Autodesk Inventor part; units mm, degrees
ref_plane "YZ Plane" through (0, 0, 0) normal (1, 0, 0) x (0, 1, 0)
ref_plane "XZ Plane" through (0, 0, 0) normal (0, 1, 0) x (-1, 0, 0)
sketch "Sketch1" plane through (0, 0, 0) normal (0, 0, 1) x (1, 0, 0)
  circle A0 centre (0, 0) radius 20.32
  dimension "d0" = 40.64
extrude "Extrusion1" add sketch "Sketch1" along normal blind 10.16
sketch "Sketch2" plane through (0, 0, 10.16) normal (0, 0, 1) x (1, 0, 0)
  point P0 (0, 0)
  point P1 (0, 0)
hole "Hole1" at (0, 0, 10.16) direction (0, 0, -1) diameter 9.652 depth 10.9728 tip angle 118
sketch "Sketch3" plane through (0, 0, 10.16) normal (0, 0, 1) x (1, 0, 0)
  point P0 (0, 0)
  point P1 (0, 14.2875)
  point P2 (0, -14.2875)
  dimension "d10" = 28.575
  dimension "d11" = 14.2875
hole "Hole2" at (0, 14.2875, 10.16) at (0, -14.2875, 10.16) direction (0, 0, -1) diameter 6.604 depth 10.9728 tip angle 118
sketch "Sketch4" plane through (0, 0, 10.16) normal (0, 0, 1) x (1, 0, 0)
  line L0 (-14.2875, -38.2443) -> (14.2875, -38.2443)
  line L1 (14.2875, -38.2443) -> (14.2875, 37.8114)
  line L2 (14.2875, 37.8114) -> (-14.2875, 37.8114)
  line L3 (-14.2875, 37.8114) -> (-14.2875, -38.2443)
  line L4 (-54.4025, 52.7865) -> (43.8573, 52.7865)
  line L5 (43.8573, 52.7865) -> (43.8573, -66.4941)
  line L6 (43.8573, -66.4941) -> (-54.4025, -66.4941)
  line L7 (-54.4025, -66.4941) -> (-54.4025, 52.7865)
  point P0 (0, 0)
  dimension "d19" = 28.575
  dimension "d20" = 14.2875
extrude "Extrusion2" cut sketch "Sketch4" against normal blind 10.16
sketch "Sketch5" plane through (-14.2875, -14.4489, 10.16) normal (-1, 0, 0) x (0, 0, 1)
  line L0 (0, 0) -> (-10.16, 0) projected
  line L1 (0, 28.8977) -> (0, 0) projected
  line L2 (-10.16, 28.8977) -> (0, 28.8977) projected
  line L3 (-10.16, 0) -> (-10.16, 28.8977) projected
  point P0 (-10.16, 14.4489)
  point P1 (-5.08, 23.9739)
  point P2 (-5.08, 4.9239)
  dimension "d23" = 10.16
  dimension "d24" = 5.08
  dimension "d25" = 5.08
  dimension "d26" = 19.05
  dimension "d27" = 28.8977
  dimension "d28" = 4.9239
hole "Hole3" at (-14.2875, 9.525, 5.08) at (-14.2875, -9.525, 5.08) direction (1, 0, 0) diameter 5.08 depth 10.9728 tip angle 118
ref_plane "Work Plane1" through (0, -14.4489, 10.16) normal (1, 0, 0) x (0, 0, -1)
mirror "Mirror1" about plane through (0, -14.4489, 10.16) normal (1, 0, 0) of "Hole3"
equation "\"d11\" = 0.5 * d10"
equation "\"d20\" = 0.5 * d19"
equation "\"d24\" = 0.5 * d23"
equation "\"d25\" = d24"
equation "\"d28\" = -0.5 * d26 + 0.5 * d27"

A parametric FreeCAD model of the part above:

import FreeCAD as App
import Part
import Sketcher

V = App.Vector
Q = App.Units.Quantity


def add_polygon(sketch, points):
    """Adds a closed chain of lines whose ends are joined by coincident constraints."""
    first, n = sketch.GeometryCount, len(points)
    for a, b in zip(points, points[1:] + points[:1]):
        sketch.addGeometry(Part.LineSegment(App.Vector(*a, 0), App.Vector(*b, 0)), False)
    for i in range(n):
        sketch.addConstraint(Sketcher.Constraint("Coincident", first + i, 2, first + (i + 1) % n, 1))

doc = App.newDocument("Part")
params = doc.addObject("Spreadsheet::Sheet", "Params")
for row, (alias, value) in enumerate([
    ("sketch1_diameter", "1.6 in"),
    ("pad1_length", "0.4 in"),
    ("sketch2_diameter", "0.38 in"),
    ("hole_diameter", "0.38 in"),
    ("hole_depth", "0.432 in"),
    ("sketch3_diameter", "0.26 in"),
    ("hole2_diameter", "0.26 in"),
    ("hole2_depth", "0.432 in"),
    ("sketch4_width", "1.125 in"),
    ("pocket1_length", "0.4 in"),
    ("sketch5_diameter", "0.2 in"),
    ("hole3_diameter", "0.2 in"),
    ("hole3_depth", "0.432 in"),
], start=1):
    params.set(f"A{row}", alias)
    params.set(f"B{row}", "=" + value)
    params.setAlias(f"B{row}", alias)

body = doc.addObject("PartDesign::Body", "Body")

# Sketch on XY plane
sketch1 = body.newObject("Sketcher::SketchObject", "Sketch")
sketch1.AttachmentSupport = (doc.getObject("XY_Plane"), [""])
sketch1.MapMode = "FlatFace"
sketch1.addGeometry(Part.Circle(V(0, 0, 0), V(0, 0, 1), 20.32), False)
sketch1.addConstraint([
    Sketcher.Constraint("Coincident", 0, 3, -1, 1),
    Sketcher.Constraint("Diameter", 0, Q("1.6 in")),
])
sketch1.setExpression("Constraints[1]", "Params.sketch1_diameter")
pad1 = body.newObject("PartDesign::Pad", "Pad")
pad1.Profile = sketch1
pad1.setExpression("Length", "Params.pad1_length")

# Sketch on XY plane
sketch2 = body.newObject("Sketcher::SketchObject", "Sketch001")
sketch2.AttachmentSupport = (doc.getObject("XY_Plane"), [""])
sketch2.MapMode = "FlatFace"
sketch2.AttachmentOffset = App.Placement(V(0, 0, 0.4 * 25.4), App.Rotation())
sketch2.addGeometry(Part.Circle(V(0, 0, 0), V(0, 0, 1), 4.826), False)
sketch2.addConstraint([
    Sketcher.Constraint("Coincident", 0, 3, -1, 1),
    Sketcher.Constraint("Diameter", 0, Q("0.38 in")),
])
sketch2.setExpression("Constraints[1]", "Params.sketch2_diameter")
doc.recompute()
hole = body.newObject("PartDesign::Hole", "Hole")
hole.Profile = sketch2
hole.ThreadType = "None"
hole.setExpression("Diameter", "Params.hole_diameter")
hole.DepthType = "Dimension"
hole.setExpression("Depth", "Params.hole_depth")
hole.DrillPoint = "Angled"
hole.DrillPointAngle = 118

# Sketch on XY plane
sketch3 = body.newObject("Sketcher::SketchObject", "Sketch002")
sketch3.AttachmentSupport = (doc.getObject("XY_Plane"), [""])
sketch3.MapMode = "FlatFace"
sketch3.AttachmentOffset = App.Placement(V(0, 0, 0.4 * 25.4), App.Rotation())
sketch3.addGeometry([
    Part.Circle(V(0, 14.2875, 0), V(0, 0, 1), 3.302),
    Part.Circle(V(0, -14.2875, 0), V(0, 0, 1), 3.302),
], False)
sketch3.addConstraint([
    Sketcher.Constraint("Equal", 0, 1),
    Sketcher.Constraint("Symmetric", 0, 3, 1, 3, -1, 1),
    Sketcher.Constraint("PointOnObject", 0, 3, -2),
    Sketcher.Constraint("Diameter", 0, Q("0.26 in")),
    Sketcher.Constraint("DistanceY", -1, 1, 0, 3, Q("0.5625 in")),
])
sketch3.setExpression("Constraints[3]", "Params.sketch3_diameter")
doc.recompute()
hole2 = body.newObject("PartDesign::Hole", "Hole001")
hole2.Profile = sketch3
hole2.ThreadType = "None"
hole2.setExpression("Diameter", "Params.hole2_diameter")
hole2.DepthType = "Dimension"
hole2.setExpression("Depth", "Params.hole2_depth")
hole2.DrillPoint = "Angled"
hole2.DrillPointAngle = 118

# Sketch on XY plane
sketch4 = body.newObject("Sketcher::SketchObject", "Sketch003")
sketch4.AttachmentSupport = (doc.getObject("XY_Plane"), [""])
sketch4.MapMode = "FlatFace"
sketch4.AttachmentOffset = App.Placement(V(0, 0, 0.4 * 25.4), App.Rotation())
add_polygon(sketch4, [(43.8573, 52.7865), (-54.4025, 52.7865), (-54.4025, -66.4941), (43.8573, -66.4941)])  # lines 0-3
add_polygon(sketch4, [(14.2875, -38.2443), (-14.2875, -38.2443), (-14.2875, 37.8114), (14.2875, 37.8114)])  # lines 4-7
sketch4.addConstraint([
    Sketcher.Constraint("Horizontal", 0),
    Sketcher.Constraint("Vertical", 1),
    Sketcher.Constraint("Horizontal", 2),
    Sketcher.Constraint("Vertical", 3),
    Sketcher.Constraint("Horizontal", 4),
    Sketcher.Constraint("Vertical", 5),
    Sketcher.Constraint("Horizontal", 6),
    Sketcher.Constraint("Vertical", 7),
    Sketcher.Constraint("DistanceX", 4, 2, 4, 1, Q("1.125 in")),
    Sketcher.Constraint("DistanceX", 4, 2, -1, 1, Q("0.5625 in")),
    Sketcher.Constraint("DistanceX", 0, 2, 0, 1, Q("3.8685 in")),
    Sketcher.Constraint("DistanceY", 1, 2, 1, 1, 119.2806),
    Sketcher.Constraint("DistanceY", 5, 1, 5, 2, 76.0557),
    Sketcher.Constraint("DistanceY", -1, 1, 0, 2, Q("2.0782 in")),
    Sketcher.Constraint("DistanceY", 1, 2, 4, 2, Q("1.1122 in")),
    Sketcher.Constraint("DistanceX", 0, 2, -1, 1, 54.4025),
])
sketch4.setExpression("Constraints[16]", "Params.sketch4_width")
pocket1 = body.newObject("PartDesign::Pocket", "Pocket")
pocket1.Profile = sketch4
pocket1.setExpression("Length", "Params.pocket1_length")

# Sketch on YZ plane
sketch5 = body.newObject("Sketcher::SketchObject", "Sketch004")
sketch5.AttachmentSupport = (doc.getObject("YZ_Plane"), [""])
sketch5.MapMode = "FlatFace"
sketch5.AttachmentOffset = App.Placement(V(0, 0, -0.5625 * 25.4), App.Rotation())
sketch5.addGeometry([
    Part.Circle(V(9.525, 5.08, 0), V(0, 0, 1), 2.54),
    Part.Circle(V(-9.525, 5.08, 0), V(0, 0, 1), 2.54),
], False)
sketch5.addConstraint([
    Sketcher.Constraint("Equal", 0, 1),
    Sketcher.Constraint("Symmetric", 0, 3, 1, 3, -2),
    Sketcher.Constraint("Diameter", 0, Q("0.2 in")),
    Sketcher.Constraint("DistanceY", -1, 1, 0, 3, Q("0.2 in")),
    Sketcher.Constraint("DistanceX", 1, 3, 0, 3, Q("0.75 in")),
])
sketch5.setExpression("Constraints[2]", "Params.sketch5_diameter")
doc.recompute()
hole3 = body.newObject("PartDesign::Hole", "Hole002")
hole3.Profile = sketch5
hole3.ThreadType = "None"
hole3.setExpression("Diameter", "Params.hole3_diameter")
hole3.DepthType = "Dimension"
hole3.setExpression("Depth", "Params.hole3_depth")
hole3.DrillPoint = "Angled"
hole3.DrillPointAngle = 118
hole3.Reversed = True
doc.recompute()

mirrored = body.newObject("PartDesign::Mirrored", "Mirrored")
mirrored.Originals = [hole3]
mirrored.MirrorPlane = (doc.getObject("YZ_Plane"), [""])
body.Tip = mirrored

doc.recompute()
